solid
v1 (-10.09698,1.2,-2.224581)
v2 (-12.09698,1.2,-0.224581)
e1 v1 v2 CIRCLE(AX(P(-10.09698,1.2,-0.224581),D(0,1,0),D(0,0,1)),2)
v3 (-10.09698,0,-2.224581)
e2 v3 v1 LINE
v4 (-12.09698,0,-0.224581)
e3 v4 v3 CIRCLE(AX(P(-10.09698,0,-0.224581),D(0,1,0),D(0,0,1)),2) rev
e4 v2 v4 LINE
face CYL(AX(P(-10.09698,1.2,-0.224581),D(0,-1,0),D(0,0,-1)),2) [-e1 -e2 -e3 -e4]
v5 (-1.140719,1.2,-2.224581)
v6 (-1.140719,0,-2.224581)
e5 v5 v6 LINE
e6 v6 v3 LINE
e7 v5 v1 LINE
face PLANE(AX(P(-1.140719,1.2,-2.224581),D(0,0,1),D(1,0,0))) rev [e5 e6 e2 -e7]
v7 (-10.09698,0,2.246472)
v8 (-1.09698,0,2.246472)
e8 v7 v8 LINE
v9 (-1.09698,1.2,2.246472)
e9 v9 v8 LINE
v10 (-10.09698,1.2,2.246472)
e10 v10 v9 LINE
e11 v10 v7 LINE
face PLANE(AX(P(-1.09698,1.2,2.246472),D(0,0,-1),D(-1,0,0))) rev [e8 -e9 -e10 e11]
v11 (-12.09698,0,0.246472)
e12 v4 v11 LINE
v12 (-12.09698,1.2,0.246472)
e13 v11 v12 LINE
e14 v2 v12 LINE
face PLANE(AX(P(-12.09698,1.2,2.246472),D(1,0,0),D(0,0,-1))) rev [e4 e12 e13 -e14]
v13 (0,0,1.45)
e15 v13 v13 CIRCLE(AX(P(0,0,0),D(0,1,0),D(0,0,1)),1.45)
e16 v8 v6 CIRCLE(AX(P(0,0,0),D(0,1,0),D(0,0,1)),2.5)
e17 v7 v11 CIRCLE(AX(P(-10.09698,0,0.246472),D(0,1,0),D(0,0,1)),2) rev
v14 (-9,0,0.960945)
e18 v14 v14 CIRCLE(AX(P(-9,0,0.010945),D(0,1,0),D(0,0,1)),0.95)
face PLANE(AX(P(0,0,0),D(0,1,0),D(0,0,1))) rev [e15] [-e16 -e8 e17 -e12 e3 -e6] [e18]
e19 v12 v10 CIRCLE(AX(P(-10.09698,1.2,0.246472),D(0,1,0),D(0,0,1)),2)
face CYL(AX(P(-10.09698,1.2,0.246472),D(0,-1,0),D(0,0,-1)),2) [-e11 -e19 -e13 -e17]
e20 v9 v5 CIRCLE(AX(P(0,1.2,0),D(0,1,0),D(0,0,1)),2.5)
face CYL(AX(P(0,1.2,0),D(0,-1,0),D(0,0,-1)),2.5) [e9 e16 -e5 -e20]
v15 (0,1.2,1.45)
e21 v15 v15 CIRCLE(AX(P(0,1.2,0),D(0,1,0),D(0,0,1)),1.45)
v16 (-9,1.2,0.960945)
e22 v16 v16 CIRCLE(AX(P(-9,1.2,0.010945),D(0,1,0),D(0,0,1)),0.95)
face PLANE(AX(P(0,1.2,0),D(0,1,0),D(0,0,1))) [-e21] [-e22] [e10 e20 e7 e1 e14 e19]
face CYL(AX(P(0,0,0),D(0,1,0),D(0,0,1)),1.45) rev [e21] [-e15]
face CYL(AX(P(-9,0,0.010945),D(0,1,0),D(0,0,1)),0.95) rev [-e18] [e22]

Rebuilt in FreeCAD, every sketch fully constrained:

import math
import FreeCAD as App
import Part
import Sketcher


def edges_at(feature, points):
    """Names of the edges that pass closest to the given points."""
    edges = feature.Shape.Edges
    near = lambda p: min(range(len(edges)), key=lambda i: edges[i].distToShape(Part.Vertex(*p))[0])
    return sorted({f"Edge{near(p) + 1}" for p in points})

doc = App.newDocument("Part")
params = doc.addObject("Spreadsheet::Sheet", "Params")
for row, (alias, value) in enumerate([
    ("sketch1_radius", "2.5 mm"),
    ("sketch1_width", "11 mm"),
    ("pad1_length", "1.2 mm"),
    ("sketch2_diameter", "2.9 mm"),
    ("fillet_radius", "2 mm"),
    ("sketch3_diameter", "1.9 mm"),
], start=1):
    params.set(f"A{row}", alias)
    params.set(f"B{row}", "=" + value)
    params.setAlias(f"B{row}", alias)

body = doc.addObject("PartDesign::Body", "Body")

# Sketch on XZ plane
sketch1 = body.newObject("Sketcher::SketchObject", "Sketch")
sketch1.AttachmentSupport = (doc.getObject("XZ_Plane"), [""])
sketch1.MapMode = "FlatFace"
sketch1.addGeometry(Part.LineSegment(App.Vector(-12.1, 2.2, 0), App.Vector(-1.1, 2.2, 0)), False)
sketch1.addGeometry(Part.ArcOfCircle(Part.Circle(App.Vector(0, 0, 0), App.Vector(0, 0, 1), 2.5), math.radians(-117), math.radians(116)), False)
sketch1.addGeometry(Part.LineSegment(App.Vector(-1.1, -2.2, 0), App.Vector(-12.1, -2.2, 0)), False)
sketch1.addGeometry(Part.LineSegment(App.Vector(-12.1, -2.2, 0), App.Vector(-12.1, 2.2, 0)), False)
sketch1.addConstraint(Sketcher.Constraint("Coincident", 0, 2, 1, 2))
sketch1.addConstraint(Sketcher.Constraint("Coincident", 1, 1, 2, 1))
sketch1.addConstraint(Sketcher.Constraint("Coincident", 2, 2, 3, 1))
sketch1.addConstraint(Sketcher.Constraint("Coincident", 3, 2, 0, 1))
sketch1.addConstraint(Sketcher.Constraint("Horizontal", 0))
sketch1.addConstraint(Sketcher.Constraint("Horizontal", 2))
sketch1.addConstraint(Sketcher.Constraint("Vertical", 3))
sketch1.addConstraint(Sketcher.Constraint("Coincident", 1, 3, -1, 1))
sketch1.addConstraint(Sketcher.Constraint("Radius", 1, 2.5))
sketch1.addConstraint(Sketcher.Constraint("DistanceX", 0, 1, 0, 2, 11.0))
sketch1.addConstraint(Sketcher.Constraint("DistanceX", 2, 2, 2, 1, 10.956261))
sketch1.addConstraint(Sketcher.Constraint("DistanceY", 3, 1, 3, 2, 4.471053))
sketch1.setExpression("Constraints[8]", "Params.sketch1_radius")
sketch1.setExpression("Constraints[9]", "Params.sketch1_width")
pad1 = body.newObject("PartDesign::Pad", "Pad")
pad1.Profile = sketch1
pad1.setExpression("Length", "Params.pad1_length")
pad1.Reversed = True

# Sketch on XZ plane
sketch2 = body.newObject("Sketcher::SketchObject", "Sketch001")
sketch2.AttachmentSupport = (doc.getObject("XZ_Plane"), [""])
sketch2.MapMode = "FlatFace"
sketch2.AttachmentOffset = App.Placement(App.Vector(0, 0, -1.2), App.Rotation())
sketch2.addGeometry(Part.Circle(App.Vector(0, 0, 0), App.Vector(0, 0, 1), 1.4), False)
sketch2.addConstraint(Sketcher.Constraint("Coincident", 0, 3, -1, 1))
sketch2.addConstraint(Sketcher.Constraint("Diameter", 0, 2.9))
sketch2.setExpression("Constraints[1]", "Params.sketch2_diameter")
pocket1 = body.newObject("PartDesign::Pocket", "Pocket")
pocket1.Profile = sketch2
pocket1.Type = "ThroughAll"
pocket1.Reversed = True
doc.recompute()

fillet = body.newObject("PartDesign::Fillet", "Fillet")
fillet.Base = (pocket1, edges_at(pocket1, [(-12.097, 0.6, 2.246), (-12.097, 0.6, -2.225)]))
fillet.setExpression("Radius", "Params.fillet_radius")

# Sketch on XZ plane
sketch3 = body.newObject("Sketcher::SketchObject", "Sketch002")
sketch3.AttachmentSupport = (doc.getObject("XZ_Plane"), [""])
sketch3.MapMode = "FlatFace"
sketch3.AttachmentOffset = App.Placement(App.Vector(0, 0, -1.2), App.Rotation())
sketch3.addGeometry(Part.Circle(App.Vector(-9, 0, 0), App.Vector(0, 0, 1), 0.9), False)
sketch3.addConstraint(Sketcher.Constraint("Diameter", 0, 1.9))
sketch3.addConstraint(Sketcher.Constraint("DistanceX", 0, 3, -1, 1, 9.0))
sketch3.addConstraint(Sketcher.Constraint("DistanceY", -1, 1, 0, 3, 0.010945))
sketch3.setExpression("Constraints[0]", "Params.sketch3_diameter")
pocket2 = body.newObject("PartDesign::Pocket", "Pocket001")
pocket2.Profile = sketch3
pocket2.Type = "ThroughAll"
pocket2.Reversed = True

doc.recompute()
